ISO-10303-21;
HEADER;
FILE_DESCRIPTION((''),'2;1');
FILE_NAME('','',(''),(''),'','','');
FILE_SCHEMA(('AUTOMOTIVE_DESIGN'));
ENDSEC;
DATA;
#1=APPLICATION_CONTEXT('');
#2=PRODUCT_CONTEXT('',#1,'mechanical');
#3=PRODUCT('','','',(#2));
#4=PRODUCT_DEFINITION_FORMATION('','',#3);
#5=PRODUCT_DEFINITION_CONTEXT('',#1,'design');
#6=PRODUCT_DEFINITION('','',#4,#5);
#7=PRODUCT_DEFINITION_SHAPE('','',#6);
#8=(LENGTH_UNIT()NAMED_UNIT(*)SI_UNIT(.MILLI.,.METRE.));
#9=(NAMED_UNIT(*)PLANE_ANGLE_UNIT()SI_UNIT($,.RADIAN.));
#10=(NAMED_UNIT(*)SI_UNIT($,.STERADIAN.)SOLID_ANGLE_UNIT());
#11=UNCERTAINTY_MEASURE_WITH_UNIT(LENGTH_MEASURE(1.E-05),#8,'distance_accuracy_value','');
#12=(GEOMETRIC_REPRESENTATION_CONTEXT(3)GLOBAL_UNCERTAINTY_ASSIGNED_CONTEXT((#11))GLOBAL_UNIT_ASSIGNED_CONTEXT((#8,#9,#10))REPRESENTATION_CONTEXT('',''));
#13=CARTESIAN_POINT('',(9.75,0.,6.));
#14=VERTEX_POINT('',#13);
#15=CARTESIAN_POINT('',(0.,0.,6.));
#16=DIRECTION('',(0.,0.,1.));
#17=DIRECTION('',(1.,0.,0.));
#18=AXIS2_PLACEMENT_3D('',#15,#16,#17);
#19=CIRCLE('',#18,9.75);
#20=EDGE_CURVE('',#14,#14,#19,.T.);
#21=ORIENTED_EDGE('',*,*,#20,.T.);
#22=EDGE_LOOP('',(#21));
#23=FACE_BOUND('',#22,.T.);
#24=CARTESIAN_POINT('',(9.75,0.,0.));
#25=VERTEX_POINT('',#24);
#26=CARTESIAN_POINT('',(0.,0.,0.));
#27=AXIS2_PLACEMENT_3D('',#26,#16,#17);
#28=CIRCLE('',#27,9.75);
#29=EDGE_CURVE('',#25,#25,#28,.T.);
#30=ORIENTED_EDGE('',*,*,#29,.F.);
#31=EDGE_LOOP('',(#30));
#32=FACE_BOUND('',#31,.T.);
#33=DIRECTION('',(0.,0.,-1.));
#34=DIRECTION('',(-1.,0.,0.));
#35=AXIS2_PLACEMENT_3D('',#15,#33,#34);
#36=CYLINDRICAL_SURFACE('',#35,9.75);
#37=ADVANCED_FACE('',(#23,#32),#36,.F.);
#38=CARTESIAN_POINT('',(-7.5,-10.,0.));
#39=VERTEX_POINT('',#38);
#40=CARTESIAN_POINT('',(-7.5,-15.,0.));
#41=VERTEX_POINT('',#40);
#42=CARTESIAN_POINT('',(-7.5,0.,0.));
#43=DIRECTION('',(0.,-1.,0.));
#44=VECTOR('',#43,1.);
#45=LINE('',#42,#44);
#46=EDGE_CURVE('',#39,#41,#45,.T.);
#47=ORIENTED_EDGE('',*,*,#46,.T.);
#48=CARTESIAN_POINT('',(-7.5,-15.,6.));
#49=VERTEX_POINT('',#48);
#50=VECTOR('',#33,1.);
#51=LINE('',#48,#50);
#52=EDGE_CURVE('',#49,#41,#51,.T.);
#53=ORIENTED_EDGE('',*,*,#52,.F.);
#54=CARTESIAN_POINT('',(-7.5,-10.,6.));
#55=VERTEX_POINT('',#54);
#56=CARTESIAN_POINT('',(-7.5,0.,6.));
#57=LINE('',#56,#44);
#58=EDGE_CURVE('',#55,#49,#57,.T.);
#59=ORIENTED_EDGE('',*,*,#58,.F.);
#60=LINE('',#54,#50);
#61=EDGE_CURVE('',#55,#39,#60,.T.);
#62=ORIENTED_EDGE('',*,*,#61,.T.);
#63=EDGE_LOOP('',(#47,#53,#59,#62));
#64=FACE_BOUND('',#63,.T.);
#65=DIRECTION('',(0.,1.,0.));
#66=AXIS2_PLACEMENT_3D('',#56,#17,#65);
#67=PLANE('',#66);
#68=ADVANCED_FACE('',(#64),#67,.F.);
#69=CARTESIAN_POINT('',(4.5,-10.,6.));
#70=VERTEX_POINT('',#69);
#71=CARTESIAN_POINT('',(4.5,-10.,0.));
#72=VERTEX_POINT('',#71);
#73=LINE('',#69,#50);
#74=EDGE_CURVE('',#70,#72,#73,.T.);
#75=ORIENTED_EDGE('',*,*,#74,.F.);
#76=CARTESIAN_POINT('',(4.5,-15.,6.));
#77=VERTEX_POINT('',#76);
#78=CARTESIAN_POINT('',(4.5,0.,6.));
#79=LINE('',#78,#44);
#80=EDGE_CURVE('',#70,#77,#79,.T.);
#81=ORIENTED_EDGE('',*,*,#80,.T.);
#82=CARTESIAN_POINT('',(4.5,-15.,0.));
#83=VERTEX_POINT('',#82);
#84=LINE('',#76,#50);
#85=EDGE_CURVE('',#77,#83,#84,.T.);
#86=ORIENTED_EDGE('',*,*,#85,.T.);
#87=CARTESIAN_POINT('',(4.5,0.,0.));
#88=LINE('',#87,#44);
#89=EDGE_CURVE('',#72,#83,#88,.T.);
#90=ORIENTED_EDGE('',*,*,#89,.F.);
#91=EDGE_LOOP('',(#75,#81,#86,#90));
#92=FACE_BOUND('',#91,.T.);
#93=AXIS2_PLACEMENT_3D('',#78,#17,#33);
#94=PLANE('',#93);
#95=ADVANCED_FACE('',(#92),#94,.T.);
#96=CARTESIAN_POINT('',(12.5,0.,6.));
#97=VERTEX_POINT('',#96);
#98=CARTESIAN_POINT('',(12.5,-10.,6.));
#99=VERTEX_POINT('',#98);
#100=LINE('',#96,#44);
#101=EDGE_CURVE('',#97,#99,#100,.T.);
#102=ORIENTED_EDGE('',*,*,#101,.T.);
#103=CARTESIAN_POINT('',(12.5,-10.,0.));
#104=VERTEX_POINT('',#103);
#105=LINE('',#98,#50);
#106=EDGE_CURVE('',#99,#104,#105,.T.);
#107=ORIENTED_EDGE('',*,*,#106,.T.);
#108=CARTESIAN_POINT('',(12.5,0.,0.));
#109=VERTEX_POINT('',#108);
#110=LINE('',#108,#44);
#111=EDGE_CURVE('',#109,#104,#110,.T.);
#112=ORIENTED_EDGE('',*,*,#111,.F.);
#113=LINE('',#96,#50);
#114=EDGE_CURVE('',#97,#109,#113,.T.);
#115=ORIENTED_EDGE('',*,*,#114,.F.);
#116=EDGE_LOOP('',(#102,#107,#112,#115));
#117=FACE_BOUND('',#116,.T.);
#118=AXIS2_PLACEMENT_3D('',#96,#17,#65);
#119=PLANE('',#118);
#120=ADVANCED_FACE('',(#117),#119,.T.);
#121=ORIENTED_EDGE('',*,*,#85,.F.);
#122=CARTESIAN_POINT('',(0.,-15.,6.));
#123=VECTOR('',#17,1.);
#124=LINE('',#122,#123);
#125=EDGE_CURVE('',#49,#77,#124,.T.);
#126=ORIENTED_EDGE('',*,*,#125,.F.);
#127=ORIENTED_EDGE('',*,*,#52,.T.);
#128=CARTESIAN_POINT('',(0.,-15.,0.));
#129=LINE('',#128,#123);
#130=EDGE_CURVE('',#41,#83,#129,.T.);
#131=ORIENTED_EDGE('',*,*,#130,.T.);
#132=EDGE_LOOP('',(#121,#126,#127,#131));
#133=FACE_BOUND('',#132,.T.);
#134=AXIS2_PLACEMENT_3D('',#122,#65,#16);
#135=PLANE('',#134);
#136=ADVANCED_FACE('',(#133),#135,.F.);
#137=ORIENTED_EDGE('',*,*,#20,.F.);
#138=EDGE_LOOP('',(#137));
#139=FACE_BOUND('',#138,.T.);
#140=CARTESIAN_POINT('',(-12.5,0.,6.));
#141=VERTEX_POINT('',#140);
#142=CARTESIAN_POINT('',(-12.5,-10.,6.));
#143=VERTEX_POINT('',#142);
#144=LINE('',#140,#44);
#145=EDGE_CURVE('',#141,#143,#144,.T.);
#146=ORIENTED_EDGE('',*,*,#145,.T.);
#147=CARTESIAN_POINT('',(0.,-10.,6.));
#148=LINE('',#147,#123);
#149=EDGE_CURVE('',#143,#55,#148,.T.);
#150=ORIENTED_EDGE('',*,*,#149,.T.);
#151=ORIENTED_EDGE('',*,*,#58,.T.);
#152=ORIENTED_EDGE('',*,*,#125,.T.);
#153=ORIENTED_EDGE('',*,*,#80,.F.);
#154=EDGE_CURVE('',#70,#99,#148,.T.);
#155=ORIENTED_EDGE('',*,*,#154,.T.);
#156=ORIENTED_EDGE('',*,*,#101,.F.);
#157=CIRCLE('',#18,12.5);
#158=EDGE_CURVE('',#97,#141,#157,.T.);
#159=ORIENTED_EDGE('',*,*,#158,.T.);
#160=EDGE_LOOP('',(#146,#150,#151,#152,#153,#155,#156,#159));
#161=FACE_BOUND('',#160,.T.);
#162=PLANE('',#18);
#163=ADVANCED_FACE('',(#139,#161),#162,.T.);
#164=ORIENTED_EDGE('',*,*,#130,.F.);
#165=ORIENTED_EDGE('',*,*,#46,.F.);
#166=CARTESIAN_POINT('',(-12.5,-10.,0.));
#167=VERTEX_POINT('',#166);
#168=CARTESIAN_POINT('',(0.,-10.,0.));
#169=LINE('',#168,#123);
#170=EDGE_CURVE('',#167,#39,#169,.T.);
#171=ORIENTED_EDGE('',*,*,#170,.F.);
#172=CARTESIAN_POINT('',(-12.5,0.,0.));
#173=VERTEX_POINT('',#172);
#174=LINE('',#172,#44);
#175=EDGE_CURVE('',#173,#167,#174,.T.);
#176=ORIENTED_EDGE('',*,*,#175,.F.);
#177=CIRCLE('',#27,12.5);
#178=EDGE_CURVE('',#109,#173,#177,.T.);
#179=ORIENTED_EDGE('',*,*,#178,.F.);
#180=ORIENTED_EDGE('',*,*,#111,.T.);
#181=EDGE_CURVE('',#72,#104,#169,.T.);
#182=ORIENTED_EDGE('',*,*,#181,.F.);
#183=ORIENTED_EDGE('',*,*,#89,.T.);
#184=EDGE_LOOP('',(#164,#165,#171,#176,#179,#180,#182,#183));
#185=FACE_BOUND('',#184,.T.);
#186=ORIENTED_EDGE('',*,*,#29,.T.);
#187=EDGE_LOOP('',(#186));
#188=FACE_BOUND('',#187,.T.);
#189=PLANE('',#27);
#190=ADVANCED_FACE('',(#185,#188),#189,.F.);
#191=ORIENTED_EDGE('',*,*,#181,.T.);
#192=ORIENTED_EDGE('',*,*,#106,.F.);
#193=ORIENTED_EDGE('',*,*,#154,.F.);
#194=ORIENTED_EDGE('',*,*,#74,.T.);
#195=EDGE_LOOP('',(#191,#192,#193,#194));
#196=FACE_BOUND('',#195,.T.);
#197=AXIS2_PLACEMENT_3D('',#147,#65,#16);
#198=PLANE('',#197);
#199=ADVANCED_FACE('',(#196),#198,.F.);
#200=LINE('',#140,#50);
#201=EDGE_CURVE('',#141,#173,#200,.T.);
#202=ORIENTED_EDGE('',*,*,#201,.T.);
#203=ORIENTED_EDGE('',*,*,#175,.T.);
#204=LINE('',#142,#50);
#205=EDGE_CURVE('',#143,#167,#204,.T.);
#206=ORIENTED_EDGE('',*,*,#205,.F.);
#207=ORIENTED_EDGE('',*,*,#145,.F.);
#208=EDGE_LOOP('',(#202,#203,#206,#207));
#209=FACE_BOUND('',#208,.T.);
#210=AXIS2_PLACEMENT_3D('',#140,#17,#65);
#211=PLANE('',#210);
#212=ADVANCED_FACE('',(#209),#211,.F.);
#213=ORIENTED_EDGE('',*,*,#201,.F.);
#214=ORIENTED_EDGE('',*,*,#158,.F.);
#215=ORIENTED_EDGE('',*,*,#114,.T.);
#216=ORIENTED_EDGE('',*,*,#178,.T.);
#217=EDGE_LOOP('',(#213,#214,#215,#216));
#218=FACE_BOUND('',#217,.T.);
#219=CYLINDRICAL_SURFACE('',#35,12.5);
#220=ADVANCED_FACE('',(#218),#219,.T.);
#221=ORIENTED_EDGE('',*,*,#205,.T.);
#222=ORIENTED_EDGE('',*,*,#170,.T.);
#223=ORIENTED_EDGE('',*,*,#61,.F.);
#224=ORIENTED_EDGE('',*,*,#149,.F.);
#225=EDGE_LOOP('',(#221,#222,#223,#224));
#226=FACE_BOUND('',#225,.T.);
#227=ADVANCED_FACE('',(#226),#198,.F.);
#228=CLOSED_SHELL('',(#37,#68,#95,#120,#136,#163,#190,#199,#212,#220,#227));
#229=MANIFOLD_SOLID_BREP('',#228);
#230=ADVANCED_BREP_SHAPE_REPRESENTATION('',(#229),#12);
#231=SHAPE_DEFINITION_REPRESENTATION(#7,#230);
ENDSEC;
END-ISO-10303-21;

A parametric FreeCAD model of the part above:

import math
import FreeCAD as App
import Part
import Sketcher
from FreeCAD import Vector

doc = App.newDocument("Part")
params = doc.addObject("Spreadsheet::Sheet", "Params")
for row, (alias, value) in enumerate([
    ("sketch1_diameter", "19.5 mm"),
    ("sketch1_radius", "12.5 mm"),
    ("sketch1_width", "5 mm"),
    ("sketch1_width2", "12 mm"),
    ("sketch1_height", "10 mm"),
    ("pad1_length", "6 mm"),
], start=1):
    params.set(f"A{row}", alias)
    params.set(f"B{row}", "=" + value)
    params.setAlias(f"B{row}", alias)

body = doc.addObject("PartDesign::Body", "Body")

# Sketch on XY plane
sketch1 = doc.addObject("Sketcher::SketchObject", "Sketch")
body.addObject(sketch1)
sketch1.AttachmentSupport = (doc.XY_Plane, [""])
sketch1.MapMode = "FlatFace"
sketch1.addGeometry([
    Part.ArcOfCircle(Part.Circle(Vector(0, 0, 0), Vector(0, 0, 1), 12.5), math.radians(0), math.radians(180)),  # 0
    Part.LineSegment(Vector(-12.5, 0, 0), Vector(-12.5, -10, 0)),  # 1
    Part.LineSegment(Vector(-12.5, -10, 0), Vector(-7.5, -10, 0)),  # 2
    Part.LineSegment(Vector(-7.5, -10, 0), Vector(-7.5, -15, 0)),  # 3
    Part.LineSegment(Vector(-7.5, -15, 0), Vector(4.5, -15, 0)),  # 4
    Part.LineSegment(Vector(4.5, -15, 0), Vector(4.5, -10, 0)),  # 5
    Part.LineSegment(Vector(4.5, -10, 0), Vector(12.5, -10, 0)),  # 6
    Part.LineSegment(Vector(12.5, -10, 0), Vector(12.5, 0, 0)),  # 7
    Part.Circle(Vector(0, 0, 0), Vector(0, 0, 1), 9.75),  # 8
], False)
sketch1.addConstraint([
    Sketcher.Constraint("Tangent", 0, 2, 1, 1),
    Sketcher.Constraint("Coincident", 1, 2, 2, 1),
    Sketcher.Constraint("Coincident", 2, 2, 3, 1),
    Sketcher.Constraint("Coincident", 3, 2, 4, 1),
    Sketcher.Constraint("Coincident", 4, 2, 5, 1),
    Sketcher.Constraint("Coincident", 5, 2, 6, 1),
    Sketcher.Constraint("Coincident", 6, 2, 7, 1),
    Sketcher.Constraint("Tangent", 7, 2, 0, 1),
    Sketcher.Constraint("Vertical", 1),
    Sketcher.Constraint("Horizontal", 2),
    Sketcher.Constraint("Vertical", 3),
    Sketcher.Constraint("Horizontal", 4),
    Sketcher.Constraint("Vertical", 5),
    Sketcher.Constraint("Horizontal", 6),
    Sketcher.Constraint("Vertical", 7),
    Sketcher.Constraint("Coincident", 0, 3, -1, 1),
    Sketcher.Constraint("Coincident", 8, 3, -1, 1),
    Sketcher.Constraint("Horizontal", 2, 2, 5, 2),
    Sketcher.Constraint("Equal", 2, 3),
    Sketcher.Constraint("Diameter", 8, 19.5),
    Sketcher.Constraint("Radius", 0, 12.5),
    Sketcher.Constraint("DistanceX", 2, 1, 2, 2, 5.0),
    Sketcher.Constraint("DistanceX", 4, 1, 4, 2, 12.0),
    Sketcher.Constraint("DistanceY", 1, 2, 1, 1, 10.0),
])
sketch1.setExpression("Constraints[19]", "Params.sketch1_diameter")
sketch1.setExpression("Constraints[20]", "Params.sketch1_radius")
sketch1.setExpression("Constraints[21]", "Params.sketch1_width")
sketch1.setExpression("Constraints[22]", "Params.sketch1_width2")
sketch1.setExpression("Constraints[23]", "Params.sketch1_height")
pad1 = doc.addObject("PartDesign::Pad", "Pad")
body.addObject(pad1)
pad1.Profile = sketch1
pad1.setExpression("Length", "Params.pad1_length")

doc.recompute()
